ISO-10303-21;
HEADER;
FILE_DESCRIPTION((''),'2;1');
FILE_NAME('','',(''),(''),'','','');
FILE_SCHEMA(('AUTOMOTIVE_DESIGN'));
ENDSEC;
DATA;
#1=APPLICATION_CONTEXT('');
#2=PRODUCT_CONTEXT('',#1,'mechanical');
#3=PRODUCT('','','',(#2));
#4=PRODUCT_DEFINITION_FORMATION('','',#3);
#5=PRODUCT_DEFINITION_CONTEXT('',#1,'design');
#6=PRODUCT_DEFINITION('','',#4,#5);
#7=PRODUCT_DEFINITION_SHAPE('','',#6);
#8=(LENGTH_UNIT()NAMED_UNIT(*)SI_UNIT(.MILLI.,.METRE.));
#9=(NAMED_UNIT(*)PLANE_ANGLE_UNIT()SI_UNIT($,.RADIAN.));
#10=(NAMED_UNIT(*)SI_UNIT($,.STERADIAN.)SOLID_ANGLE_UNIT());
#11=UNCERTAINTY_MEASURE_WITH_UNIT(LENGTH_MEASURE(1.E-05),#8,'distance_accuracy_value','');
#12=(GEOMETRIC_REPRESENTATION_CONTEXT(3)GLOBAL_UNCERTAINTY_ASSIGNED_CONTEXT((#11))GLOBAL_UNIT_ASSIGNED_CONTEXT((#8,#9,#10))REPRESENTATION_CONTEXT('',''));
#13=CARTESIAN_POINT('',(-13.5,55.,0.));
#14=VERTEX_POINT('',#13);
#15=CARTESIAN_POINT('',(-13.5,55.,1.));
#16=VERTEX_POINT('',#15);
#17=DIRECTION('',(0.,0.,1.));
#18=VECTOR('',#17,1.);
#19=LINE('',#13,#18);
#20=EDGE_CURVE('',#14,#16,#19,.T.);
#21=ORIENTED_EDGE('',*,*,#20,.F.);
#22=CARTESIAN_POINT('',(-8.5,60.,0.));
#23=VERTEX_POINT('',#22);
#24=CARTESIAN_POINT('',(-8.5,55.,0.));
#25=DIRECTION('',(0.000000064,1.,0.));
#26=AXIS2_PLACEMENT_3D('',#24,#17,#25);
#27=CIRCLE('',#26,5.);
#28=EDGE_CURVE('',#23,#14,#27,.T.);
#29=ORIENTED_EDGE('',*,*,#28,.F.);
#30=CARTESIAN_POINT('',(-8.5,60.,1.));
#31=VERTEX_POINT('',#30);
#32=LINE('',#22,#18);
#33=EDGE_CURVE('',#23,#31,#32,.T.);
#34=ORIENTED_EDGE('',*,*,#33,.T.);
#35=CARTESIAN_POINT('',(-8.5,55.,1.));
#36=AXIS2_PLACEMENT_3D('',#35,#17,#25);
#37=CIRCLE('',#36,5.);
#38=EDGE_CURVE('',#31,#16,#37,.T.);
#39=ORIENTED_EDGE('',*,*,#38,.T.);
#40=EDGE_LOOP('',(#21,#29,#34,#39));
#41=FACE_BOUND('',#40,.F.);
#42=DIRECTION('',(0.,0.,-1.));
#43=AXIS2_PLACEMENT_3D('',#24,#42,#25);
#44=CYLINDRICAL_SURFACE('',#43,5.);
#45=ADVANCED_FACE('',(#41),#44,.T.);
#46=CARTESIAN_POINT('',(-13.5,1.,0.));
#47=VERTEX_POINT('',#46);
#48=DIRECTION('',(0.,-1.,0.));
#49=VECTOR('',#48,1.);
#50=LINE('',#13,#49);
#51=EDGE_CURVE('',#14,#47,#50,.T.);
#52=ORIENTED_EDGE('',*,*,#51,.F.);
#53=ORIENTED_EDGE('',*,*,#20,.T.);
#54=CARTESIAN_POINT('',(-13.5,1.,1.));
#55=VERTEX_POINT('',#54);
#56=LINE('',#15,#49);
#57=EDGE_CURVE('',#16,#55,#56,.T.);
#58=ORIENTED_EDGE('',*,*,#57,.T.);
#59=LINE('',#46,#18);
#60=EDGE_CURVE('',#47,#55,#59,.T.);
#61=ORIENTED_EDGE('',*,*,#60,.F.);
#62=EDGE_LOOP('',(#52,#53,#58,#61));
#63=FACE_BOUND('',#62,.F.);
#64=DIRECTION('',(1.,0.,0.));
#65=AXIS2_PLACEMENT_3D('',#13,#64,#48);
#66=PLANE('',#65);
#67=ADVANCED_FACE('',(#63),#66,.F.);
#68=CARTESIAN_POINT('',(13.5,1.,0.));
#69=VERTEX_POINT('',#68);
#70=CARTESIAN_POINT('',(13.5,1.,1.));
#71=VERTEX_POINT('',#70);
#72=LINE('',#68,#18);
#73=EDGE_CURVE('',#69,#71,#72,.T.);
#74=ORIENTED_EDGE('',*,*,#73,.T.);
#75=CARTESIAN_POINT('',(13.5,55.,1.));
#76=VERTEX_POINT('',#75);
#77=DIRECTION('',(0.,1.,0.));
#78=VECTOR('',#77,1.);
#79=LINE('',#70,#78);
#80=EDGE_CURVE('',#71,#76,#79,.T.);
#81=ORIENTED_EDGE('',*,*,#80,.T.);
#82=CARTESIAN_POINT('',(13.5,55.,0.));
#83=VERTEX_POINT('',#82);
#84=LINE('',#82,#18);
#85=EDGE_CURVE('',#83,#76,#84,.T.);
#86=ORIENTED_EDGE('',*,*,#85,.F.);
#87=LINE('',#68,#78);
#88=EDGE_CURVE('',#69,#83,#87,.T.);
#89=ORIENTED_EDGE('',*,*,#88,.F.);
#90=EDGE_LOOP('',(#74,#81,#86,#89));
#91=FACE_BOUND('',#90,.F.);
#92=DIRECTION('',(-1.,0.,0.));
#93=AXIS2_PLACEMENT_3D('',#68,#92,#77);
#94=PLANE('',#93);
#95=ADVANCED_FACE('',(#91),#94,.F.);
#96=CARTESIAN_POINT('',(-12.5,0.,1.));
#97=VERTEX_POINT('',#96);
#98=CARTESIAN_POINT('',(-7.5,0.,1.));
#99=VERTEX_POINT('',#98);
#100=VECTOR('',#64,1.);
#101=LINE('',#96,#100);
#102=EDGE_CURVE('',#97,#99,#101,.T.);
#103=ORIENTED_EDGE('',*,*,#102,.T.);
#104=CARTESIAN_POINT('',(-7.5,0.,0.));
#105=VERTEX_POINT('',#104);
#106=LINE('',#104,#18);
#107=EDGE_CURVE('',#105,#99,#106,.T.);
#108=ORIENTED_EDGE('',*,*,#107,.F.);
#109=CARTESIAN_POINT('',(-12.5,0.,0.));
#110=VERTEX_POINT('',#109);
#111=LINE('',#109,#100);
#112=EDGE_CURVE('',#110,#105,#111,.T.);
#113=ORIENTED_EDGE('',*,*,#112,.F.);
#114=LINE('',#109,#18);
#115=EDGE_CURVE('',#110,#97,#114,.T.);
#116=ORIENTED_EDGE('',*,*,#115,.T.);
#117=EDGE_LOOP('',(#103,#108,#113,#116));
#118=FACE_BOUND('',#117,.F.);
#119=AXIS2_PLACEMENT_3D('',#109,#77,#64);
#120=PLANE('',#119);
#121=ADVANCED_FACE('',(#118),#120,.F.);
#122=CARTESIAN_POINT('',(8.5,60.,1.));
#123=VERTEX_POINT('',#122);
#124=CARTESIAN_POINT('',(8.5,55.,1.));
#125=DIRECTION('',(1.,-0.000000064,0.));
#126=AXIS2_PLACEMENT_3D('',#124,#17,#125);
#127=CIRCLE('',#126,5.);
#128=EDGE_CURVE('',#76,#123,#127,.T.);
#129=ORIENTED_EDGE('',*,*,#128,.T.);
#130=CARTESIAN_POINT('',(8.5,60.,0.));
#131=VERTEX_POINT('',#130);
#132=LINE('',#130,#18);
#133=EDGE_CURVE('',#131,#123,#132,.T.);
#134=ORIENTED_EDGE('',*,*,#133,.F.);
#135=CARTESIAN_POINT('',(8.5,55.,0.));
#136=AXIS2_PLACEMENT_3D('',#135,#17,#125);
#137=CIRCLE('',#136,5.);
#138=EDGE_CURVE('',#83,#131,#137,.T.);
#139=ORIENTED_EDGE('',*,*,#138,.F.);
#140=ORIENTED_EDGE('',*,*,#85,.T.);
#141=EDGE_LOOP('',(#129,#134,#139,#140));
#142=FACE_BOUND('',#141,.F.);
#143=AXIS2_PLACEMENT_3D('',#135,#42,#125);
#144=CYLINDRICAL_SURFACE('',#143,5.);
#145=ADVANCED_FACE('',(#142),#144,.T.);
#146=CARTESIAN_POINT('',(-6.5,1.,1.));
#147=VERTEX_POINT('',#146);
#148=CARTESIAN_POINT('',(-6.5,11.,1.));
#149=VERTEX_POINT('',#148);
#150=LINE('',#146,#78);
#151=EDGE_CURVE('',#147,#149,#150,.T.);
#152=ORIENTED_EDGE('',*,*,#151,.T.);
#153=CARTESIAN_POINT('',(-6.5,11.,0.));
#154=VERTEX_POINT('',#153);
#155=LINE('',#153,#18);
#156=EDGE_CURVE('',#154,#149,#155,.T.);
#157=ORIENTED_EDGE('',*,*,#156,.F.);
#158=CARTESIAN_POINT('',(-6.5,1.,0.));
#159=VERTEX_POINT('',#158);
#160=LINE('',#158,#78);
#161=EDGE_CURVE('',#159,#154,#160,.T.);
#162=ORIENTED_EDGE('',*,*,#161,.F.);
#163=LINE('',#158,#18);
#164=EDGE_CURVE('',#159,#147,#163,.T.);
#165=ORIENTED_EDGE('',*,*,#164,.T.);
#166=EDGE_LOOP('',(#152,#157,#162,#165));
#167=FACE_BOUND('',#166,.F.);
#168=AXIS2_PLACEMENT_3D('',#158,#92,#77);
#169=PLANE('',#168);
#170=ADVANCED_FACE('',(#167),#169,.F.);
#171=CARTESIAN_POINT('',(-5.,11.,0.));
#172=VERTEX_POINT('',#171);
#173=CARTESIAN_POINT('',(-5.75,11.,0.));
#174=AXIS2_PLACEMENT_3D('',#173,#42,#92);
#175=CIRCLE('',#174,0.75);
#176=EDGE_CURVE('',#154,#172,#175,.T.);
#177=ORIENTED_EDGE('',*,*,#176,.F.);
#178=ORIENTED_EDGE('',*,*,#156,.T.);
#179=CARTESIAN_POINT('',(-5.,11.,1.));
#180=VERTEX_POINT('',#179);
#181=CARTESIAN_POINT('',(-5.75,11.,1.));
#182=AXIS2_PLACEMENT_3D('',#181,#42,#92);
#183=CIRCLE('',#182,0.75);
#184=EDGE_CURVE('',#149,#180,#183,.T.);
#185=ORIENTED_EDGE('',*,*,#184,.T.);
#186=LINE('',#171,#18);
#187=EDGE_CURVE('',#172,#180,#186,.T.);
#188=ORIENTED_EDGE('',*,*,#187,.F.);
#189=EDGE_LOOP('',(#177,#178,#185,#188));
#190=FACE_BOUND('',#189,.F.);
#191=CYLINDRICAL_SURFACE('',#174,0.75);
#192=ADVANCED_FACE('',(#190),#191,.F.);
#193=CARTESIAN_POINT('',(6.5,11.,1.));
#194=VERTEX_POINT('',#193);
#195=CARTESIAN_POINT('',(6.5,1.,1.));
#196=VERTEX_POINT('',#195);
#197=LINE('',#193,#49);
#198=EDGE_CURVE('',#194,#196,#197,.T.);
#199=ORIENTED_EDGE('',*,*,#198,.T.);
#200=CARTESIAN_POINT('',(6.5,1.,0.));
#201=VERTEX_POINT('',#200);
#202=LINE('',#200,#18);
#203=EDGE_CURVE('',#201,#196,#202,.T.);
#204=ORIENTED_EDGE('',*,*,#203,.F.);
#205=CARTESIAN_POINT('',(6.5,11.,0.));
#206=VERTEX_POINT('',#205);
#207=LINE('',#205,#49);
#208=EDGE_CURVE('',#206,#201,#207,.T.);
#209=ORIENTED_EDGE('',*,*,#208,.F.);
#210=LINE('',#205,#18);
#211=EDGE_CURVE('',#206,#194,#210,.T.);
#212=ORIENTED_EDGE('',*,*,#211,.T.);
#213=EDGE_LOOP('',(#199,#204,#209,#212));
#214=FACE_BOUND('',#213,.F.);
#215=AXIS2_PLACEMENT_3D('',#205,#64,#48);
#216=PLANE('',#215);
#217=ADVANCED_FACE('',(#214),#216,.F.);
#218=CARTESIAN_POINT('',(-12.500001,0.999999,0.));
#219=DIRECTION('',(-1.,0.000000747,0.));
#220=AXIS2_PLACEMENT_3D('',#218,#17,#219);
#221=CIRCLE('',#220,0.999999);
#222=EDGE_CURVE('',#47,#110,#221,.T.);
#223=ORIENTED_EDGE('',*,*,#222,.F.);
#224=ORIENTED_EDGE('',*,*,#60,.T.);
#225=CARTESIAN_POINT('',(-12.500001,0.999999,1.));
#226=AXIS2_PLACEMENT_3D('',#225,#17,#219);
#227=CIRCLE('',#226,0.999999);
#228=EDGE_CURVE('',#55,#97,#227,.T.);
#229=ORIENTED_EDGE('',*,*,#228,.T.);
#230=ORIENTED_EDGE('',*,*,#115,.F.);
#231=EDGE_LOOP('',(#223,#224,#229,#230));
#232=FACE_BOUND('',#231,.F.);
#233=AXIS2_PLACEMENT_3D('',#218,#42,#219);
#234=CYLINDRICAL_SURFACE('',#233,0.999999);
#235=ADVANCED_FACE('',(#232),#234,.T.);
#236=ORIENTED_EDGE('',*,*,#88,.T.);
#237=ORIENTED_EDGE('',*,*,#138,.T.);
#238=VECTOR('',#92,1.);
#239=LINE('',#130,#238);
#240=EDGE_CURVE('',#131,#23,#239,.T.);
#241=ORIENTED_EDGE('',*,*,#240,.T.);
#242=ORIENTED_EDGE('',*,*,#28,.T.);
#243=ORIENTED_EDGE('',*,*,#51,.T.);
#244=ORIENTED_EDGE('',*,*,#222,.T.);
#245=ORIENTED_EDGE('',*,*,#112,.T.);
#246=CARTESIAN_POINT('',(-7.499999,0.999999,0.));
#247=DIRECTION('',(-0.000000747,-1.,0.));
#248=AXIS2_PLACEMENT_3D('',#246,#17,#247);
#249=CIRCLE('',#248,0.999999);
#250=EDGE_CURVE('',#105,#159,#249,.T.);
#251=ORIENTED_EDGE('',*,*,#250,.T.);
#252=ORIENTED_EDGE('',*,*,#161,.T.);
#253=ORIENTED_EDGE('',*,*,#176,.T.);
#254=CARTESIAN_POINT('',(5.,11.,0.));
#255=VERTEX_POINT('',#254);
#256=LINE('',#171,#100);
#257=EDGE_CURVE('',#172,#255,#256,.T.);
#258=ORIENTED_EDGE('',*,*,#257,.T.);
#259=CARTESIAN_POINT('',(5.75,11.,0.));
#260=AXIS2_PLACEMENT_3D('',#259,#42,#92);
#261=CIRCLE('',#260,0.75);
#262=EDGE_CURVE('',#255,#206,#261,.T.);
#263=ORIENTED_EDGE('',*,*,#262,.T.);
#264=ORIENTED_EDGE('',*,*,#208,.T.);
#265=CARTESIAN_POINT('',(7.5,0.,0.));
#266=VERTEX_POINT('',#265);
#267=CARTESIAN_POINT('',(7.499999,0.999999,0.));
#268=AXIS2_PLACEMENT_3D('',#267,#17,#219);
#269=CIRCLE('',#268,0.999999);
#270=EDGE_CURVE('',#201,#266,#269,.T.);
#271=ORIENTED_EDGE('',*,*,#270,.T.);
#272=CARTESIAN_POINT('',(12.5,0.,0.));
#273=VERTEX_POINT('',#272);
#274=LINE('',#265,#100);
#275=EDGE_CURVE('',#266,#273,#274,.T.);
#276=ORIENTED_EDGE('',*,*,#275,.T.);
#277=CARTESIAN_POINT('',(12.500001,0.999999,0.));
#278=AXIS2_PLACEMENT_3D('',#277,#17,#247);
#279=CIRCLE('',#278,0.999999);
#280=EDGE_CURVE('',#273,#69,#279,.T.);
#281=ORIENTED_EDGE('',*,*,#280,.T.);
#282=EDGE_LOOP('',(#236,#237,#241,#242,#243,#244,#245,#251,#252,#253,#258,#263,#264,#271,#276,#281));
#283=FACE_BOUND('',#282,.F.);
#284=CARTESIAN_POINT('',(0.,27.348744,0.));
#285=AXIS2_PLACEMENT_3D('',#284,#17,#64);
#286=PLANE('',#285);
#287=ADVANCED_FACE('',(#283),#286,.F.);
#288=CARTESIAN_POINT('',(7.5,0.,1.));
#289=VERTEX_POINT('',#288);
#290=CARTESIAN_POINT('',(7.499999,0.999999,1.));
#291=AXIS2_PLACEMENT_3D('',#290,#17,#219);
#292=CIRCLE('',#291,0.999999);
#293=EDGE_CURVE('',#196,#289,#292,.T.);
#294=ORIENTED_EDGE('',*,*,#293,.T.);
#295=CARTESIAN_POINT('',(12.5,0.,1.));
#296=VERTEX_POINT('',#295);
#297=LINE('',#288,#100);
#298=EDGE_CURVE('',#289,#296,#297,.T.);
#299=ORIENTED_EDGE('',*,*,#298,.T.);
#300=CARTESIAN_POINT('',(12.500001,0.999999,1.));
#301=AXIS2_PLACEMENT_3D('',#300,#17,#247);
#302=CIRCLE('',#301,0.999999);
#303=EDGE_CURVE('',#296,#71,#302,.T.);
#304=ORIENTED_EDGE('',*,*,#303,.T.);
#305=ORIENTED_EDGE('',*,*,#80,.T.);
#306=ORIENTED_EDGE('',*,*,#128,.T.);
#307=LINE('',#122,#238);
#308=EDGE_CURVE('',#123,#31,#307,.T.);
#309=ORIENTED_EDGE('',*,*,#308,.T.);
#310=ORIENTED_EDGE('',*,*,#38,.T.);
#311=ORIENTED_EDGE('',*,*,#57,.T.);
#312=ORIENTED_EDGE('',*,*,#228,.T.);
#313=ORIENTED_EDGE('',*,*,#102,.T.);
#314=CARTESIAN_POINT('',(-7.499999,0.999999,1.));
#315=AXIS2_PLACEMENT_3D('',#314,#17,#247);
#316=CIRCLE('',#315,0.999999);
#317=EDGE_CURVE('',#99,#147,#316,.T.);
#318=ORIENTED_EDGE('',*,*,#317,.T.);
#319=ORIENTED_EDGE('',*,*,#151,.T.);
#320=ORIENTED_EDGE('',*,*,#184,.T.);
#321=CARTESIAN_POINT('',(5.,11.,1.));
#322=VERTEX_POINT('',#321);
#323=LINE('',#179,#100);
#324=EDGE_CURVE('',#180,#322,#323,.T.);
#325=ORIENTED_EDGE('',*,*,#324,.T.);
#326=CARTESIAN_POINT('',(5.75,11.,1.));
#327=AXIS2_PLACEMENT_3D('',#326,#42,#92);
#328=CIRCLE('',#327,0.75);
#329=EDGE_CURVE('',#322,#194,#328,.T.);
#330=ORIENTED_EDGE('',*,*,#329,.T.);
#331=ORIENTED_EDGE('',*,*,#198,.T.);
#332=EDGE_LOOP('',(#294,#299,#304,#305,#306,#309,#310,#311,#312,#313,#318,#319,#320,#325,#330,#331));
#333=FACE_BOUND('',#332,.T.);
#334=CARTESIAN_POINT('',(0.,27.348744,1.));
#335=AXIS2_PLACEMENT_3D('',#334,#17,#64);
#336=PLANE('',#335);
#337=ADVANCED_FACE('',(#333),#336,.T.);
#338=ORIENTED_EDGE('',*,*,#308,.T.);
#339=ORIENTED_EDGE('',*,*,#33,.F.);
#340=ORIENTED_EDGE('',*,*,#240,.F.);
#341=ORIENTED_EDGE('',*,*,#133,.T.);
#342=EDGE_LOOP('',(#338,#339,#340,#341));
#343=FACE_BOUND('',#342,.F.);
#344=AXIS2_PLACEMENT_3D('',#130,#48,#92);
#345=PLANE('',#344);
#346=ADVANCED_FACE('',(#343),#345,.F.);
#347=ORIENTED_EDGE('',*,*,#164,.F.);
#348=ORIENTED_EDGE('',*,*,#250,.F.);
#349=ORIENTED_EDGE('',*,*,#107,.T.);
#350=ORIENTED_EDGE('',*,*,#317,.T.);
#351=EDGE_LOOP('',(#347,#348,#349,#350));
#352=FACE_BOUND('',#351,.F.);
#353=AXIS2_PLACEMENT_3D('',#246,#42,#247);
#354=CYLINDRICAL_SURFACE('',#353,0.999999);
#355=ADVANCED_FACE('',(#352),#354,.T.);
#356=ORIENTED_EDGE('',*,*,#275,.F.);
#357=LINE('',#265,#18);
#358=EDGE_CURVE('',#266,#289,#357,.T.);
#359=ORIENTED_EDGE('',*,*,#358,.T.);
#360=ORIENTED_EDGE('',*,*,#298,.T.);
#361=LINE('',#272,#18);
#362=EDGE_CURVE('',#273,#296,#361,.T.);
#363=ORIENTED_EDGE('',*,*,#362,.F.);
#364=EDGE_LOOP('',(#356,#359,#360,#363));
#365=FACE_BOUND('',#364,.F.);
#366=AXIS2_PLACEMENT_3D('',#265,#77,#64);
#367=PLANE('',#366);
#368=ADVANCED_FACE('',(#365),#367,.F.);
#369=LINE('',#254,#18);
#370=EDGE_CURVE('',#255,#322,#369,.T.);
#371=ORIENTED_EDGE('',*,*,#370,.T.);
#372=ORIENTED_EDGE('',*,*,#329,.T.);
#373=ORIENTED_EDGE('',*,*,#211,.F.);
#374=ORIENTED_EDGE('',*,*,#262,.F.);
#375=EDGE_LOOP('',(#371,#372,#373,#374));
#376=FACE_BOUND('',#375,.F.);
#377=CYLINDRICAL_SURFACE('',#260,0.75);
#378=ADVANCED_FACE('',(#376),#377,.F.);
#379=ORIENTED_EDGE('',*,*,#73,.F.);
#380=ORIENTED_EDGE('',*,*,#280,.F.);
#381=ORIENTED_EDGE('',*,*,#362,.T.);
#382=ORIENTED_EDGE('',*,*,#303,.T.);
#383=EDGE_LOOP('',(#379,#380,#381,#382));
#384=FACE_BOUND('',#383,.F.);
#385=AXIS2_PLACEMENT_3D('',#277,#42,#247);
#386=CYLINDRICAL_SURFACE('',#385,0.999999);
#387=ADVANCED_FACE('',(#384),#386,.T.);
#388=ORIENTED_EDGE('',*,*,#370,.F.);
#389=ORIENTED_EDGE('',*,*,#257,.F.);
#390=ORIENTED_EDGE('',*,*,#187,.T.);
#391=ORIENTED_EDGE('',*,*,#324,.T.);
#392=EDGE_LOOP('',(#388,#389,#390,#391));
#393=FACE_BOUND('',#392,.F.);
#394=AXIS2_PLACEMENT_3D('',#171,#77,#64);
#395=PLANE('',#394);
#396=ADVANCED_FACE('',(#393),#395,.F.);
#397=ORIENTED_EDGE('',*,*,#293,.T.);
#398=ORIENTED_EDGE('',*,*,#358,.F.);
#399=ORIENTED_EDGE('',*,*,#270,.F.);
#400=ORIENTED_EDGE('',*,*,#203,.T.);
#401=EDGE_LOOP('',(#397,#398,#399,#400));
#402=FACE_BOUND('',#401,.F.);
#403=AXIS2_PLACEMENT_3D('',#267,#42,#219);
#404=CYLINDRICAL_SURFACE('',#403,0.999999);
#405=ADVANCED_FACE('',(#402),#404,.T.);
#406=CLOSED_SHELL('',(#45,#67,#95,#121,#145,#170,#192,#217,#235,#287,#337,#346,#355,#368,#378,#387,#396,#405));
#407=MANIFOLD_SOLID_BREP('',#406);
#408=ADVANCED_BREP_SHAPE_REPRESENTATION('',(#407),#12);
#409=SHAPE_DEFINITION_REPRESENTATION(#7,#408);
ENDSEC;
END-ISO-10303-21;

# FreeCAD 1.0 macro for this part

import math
import FreeCAD as App
import Part
import Sketcher
Q = App.Units.Quantity

doc = App.newDocument("Part")
body = doc.addObject("PartDesign::Body", "Body")

# Sketch on XY plane
sketch1 = doc.addObject("Sketcher::SketchObject", "Sketch")
body.addObject(sketch1)
sketch1.AttachmentSupport = (doc.XY_Plane, [""])
sketch1.MapMode = "FlatFace"
sketch1.addGeometry([
    Part.ArcOfCircle(Part.Circle(App.Vector(-12.500001, 0.999999, 0), App.Vector(0, 0, 1), 0.999999), math.radians(179.999957), math.radians(270.000043)),  # 0
    Part.LineSegment(App.Vector(-12.5, 0, 0), App.Vector(-7.5, 0, 0)),  # 1
    Part.ArcOfCircle(Part.Circle(App.Vector(-7.499999, 0.999999, 0), App.Vector(0, 0, 1), 0.999999), math.radians(-90.000043), math.radians(0.000043)),  # 2
    Part.LineSegment(App.Vector(-6.5, 1, 0), App.Vector(-6.5, 11, 0)),  # 3
    Part.ArcOfCircle(Part.Circle(App.Vector(-5.75, 11, 0), App.Vector(0, 0, 1), 0.75), math.radians(0), math.radians(180)),  # 4
    Part.LineSegment(App.Vector(-5, 11, 0), App.Vector(5, 11, 0)),  # 5
    Part.ArcOfCircle(Part.Circle(App.Vector(5.75, 11, 0), App.Vector(0, 0, 1), 0.75), math.radians(0), math.radians(180)),  # 6
    Part.LineSegment(App.Vector(6.5, 11, 0), App.Vector(6.5, 1, 0)),  # 7
    Part.ArcOfCircle(Part.Circle(App.Vector(7.499999, 0.999999, 0), App.Vector(0, 0, 1), 0.999999), math.radians(179.999957), math.radians(270.000043)),  # 8
    Part.LineSegment(App.Vector(7.5, 0, 0), App.Vector(12.5, 0, 0)),  # 9
    Part.ArcOfCircle(Part.Circle(App.Vector(12.500001, 0.999999, 0), App.Vector(0, 0, 1), 0.999999), math.radians(-90.000043), math.radians(0.000043)),  # 10
    Part.LineSegment(App.Vector(13.5, 1, 0), App.Vector(13.5, 55, 0)),  # 11
    Part.ArcOfCircle(Part.Circle(App.Vector(8.5, 55, 0), App.Vector(0, 0, 1), 5), math.radians(-0.000004), math.radians(90.000004)),  # 12
    Part.LineSegment(App.Vector(8.5, 60, 0), App.Vector(-8.5, 60, 0)),  # 13
    Part.ArcOfCircle(Part.Circle(App.Vector(-8.5, 55, 0), App.Vector(0, 0, 1), 5), math.radians(89.999996), math.radians(180.000004)),  # 14
    Part.LineSegment(App.Vector(-13.5, 55, 0), App.Vector(-13.5, 1, 0)),  # 15
], False)
sketch1.addConstraint([
    Sketcher.Constraint("Tangent", 0, 2, 1, 1),
    Sketcher.Constraint("Tangent", 1, 2, 2, 1),
    Sketcher.Constraint("Tangent", 2, 2, 3, 1),
    Sketcher.Constraint("Tangent", 3, 2, 4, 2),
    Sketcher.Constraint("Coincident", 4, 1, 5, 1),
    Sketcher.Constraint("Coincident", 5, 2, 6, 2),
    Sketcher.Constraint("Tangent", 6, 1, 7, 1),
    Sketcher.Constraint("Tangent", 7, 2, 8, 1),
    Sketcher.Constraint("Tangent", 8, 2, 9, 1),
    Sketcher.Constraint("Tangent", 9, 2, 10, 1),
    Sketcher.Constraint("Tangent", 10, 2, 11, 1),
    Sketcher.Constraint("Tangent", 11, 2, 12, 1),
    Sketcher.Constraint("Tangent", 12, 2, 13, 1),
    Sketcher.Constraint("Tangent", 13, 2, 14, 1),
    Sketcher.Constraint("Tangent", 14, 2, 15, 1),
    Sketcher.Constraint("Tangent", 15, 2, 0, 1),
    Sketcher.Constraint("Horizontal", 1),
    Sketcher.Constraint("Vertical", 3),
    Sketcher.Constraint("Horizontal", 5),
    Sketcher.Constraint("Vertical", 7),
    Sketcher.Constraint("Horizontal", 9),
    Sketcher.Constraint("Vertical", 11),
    Sketcher.Constraint("Horizontal", 13),
    Sketcher.Constraint("Vertical", 15),
    Sketcher.Constraint("Equal", 0, 2),
    Sketcher.Constraint("Equal", 4, 6),
    Sketcher.Constraint("Equal", 2, 8),
    Sketcher.Constraint("Equal", 8, 10),
    Sketcher.Constraint("Equal", 12, 14),
    Sketcher.Constraint("Symmetric", 1, 2, 8, 2, -1, 1),
    Sketcher.Constraint("Symmetric", 0, 3, 10, 3, -2),
    Sketcher.Constraint("Horizontal", 4, 3, 6, 3),
    Sketcher.Constraint("Horizontal", 3, 2, 4, 1),
    Sketcher.Constraint("Equal", 5, 3),
    Sketcher.Constraint("Radius", 0, Q("0.999999 mm")),
    Sketcher.Constraint("Radius", 12, Q("5 mm")),
    Sketcher.Constraint("DistanceX", 1, 1, 1, 2, Q("5 mm")),
    Sketcher.Constraint("DistanceX", 5, 1, 5, 2, Q("10 mm")),
    Sketcher.Constraint("DistanceX", 13, 2, 13, 1, Q("17 mm")),
    Sketcher.Constraint("DistanceY", 11, 1, 11, 2, Q("54 mm")),
])
pad1 = doc.addObject("PartDesign::Pad", "Pad")
body.addObject(pad1)
pad1.Profile = sketch1
pad1.Length = 1

doc.recompute()
